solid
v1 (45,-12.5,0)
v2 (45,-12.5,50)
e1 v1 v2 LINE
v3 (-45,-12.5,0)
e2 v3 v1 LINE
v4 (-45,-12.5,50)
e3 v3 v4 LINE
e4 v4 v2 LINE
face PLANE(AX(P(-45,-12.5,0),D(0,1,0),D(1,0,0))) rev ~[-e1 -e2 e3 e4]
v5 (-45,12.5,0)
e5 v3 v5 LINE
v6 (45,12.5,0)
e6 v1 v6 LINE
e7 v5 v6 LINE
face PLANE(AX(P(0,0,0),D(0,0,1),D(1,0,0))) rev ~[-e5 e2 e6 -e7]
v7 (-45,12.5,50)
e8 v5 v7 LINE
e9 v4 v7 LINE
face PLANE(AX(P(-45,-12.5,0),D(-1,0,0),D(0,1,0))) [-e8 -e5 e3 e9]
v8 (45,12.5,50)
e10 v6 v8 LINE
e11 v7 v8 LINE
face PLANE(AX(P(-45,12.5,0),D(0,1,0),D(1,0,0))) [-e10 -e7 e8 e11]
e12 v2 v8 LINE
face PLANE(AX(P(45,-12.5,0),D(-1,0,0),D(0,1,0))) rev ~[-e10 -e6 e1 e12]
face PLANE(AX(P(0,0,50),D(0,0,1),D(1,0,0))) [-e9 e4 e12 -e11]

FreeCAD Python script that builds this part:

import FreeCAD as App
import Part
import Sketcher
from FreeCAD import Vector


def add_polygon(sketch, points):
    """Adds a closed chain of lines whose ends are joined by coincident constraints."""
    first, n = sketch.GeometryCount, len(points)
    for a, b in zip(points, points[1:] + points[:1]):
        sketch.addGeometry(Part.LineSegment(App.Vector(*a, 0), App.Vector(*b, 0)), False)
    for i in range(n):
        sketch.addConstraint(Sketcher.Constraint("Coincident", first + i, 2, first + (i + 1) % n, 1))

doc = App.newDocument("Part")
body = doc.addObject("PartDesign::Body", "Body")

# Sketch on XY plane
sketch1 = body.newObject("Sketcher::SketchObject", "Sketch")
sketch1.AttachmentSupport = (doc.getObject("XY_Plane"), [""])
sketch1.MapMode = "FlatFace"
add_polygon(sketch1, [(-45, 12.5), (-45, -12.5), (45, -12.5), (45, 12.5)])  # lines 0-3
sketch1.addConstraint([
    Sketcher.Constraint("Vertical", 0),
    Sketcher.Constraint("Horizontal", 1),
    Sketcher.Constraint("Vertical", 2),
    Sketcher.Constraint("Horizontal", 3),
    Sketcher.Constraint("Symmetric", 0, 2, 2, 2, -1, 1),
    Sketcher.Constraint("DistanceX", 1, 1, 1, 2, 90.0),
    Sketcher.Constraint("DistanceY", 0, 2, 0, 1, 25.0),
])
pad1 = body.newObject("PartDesign::Pad", "Pad")
pad1.Profile = sketch1
pad1.Length = 50

doc.recompute()
